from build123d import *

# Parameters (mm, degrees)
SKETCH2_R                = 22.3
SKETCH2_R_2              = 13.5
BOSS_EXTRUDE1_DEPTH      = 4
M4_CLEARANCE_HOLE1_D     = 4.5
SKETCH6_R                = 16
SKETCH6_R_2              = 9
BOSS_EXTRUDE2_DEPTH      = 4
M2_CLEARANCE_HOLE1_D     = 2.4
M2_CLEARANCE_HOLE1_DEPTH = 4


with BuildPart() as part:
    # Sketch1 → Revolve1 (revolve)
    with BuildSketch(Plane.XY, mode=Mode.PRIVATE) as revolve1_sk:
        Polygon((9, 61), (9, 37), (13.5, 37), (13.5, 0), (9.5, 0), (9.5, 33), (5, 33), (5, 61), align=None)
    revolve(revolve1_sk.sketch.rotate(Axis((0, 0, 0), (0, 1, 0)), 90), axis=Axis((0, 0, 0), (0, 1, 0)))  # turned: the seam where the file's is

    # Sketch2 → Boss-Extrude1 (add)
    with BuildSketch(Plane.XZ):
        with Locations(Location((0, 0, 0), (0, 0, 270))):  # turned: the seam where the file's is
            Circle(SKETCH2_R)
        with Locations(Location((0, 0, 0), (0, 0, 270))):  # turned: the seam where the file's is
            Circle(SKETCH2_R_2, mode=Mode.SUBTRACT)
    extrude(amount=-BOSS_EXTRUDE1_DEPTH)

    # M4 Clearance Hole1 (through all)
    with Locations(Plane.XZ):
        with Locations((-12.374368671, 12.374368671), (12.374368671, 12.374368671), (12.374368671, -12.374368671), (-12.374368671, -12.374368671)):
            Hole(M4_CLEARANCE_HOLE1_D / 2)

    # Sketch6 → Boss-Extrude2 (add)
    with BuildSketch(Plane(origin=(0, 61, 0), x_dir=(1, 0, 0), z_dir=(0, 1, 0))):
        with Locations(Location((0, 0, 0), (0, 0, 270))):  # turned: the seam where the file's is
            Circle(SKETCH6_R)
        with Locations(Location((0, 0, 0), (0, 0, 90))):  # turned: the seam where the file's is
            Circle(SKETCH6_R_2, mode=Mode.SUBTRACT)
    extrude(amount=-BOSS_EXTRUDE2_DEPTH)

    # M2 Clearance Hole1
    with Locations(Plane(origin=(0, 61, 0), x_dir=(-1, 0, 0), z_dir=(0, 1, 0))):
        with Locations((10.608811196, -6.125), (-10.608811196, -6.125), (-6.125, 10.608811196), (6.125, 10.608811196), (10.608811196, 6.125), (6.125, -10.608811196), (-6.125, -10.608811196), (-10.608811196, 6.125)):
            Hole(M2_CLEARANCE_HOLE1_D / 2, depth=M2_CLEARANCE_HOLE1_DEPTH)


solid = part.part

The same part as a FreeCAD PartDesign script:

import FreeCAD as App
import Part
import Sketcher

V = App.Vector


def add_polygon(sketch, points):
    """Adds a closed chain of lines whose ends are joined by coincident constraints."""
    first, n = sketch.GeometryCount, len(points)
    for a, b in zip(points, points[1:] + points[:1]):
        sketch.addGeometry(Part.LineSegment(App.Vector(*a, 0), App.Vector(*b, 0)), False)
    for i in range(n):
        sketch.addConstraint(Sketcher.Constraint("Coincident", first + i, 2, first + (i + 1) % n, 1))

doc = App.newDocument("Part")
body = doc.addObject("PartDesign::Body", "Body")

sketch1 = body.newObject("Sketcher::SketchObject", "Sketch")
sketch1.AttachmentSupport = (doc.getObject("XY_Plane"), [""])
sketch1.MapMode = "FlatFace"
add_polygon(sketch1, [(9, 37), (9, 61), (5, 61), (5, 33), (9.5, 33), (9.5, 0), (13.5, 0), (13.5, 37)])
sketch1.addConstraint(Sketcher.Constraint("Vertical", 0))
sketch1.addConstraint(Sketcher.Constraint("Horizontal", 1))
sketch1.addConstraint(Sketcher.Constraint("Vertical", 2))
sketch1.addConstraint(Sketcher.Constraint("Horizontal", 3))
sketch1.addConstraint(Sketcher.Constraint("Vertical", 4))
sketch1.addConstraint(Sketcher.Constraint("Horizontal", 5))
sketch1.addConstraint(Sketcher.Constraint("Vertical", 6))
sketch1.addConstraint(Sketcher.Constraint("Horizontal", 7))
sketch1.addConstraint(Sketcher.Constraint("PointOnObject", 4, 2, -1))
sketch1.addConstraint(Sketcher.Constraint("Equal", 1, 5))
sketch1.addConstraint(Sketcher.Constraint("DistanceX", 1, 2, 1, 1, 4.0))
sketch1.addConstraint(Sketcher.Constraint("DistanceY", 0, 1, 0, 2, 24.0))
sketch1.addConstraint(Sketcher.Constraint("DistanceY", 2, 2, 2, 1, 28.0))
sketch1.addConstraint(Sketcher.Constraint("DistanceY", 4, 2, 4, 1, 33.0))
sketch1.addConstraint(Sketcher.Constraint("DistanceX", 3, 1, 3, 2, 4.5))
sketch1.addConstraint(Sketcher.Constraint("DistanceX", -1, 1, 0, 2, 9.0))
revolution = body.newObject("PartDesign::Revolution", "Revolution")
revolution.Profile = sketch1
revolution.ReferenceAxis = (sketch1, ["V_Axis"])
revolution.Angle = 360

sketch2 = body.newObject("Sketcher::SketchObject", "Sketch001")
sketch2.AttachmentSupport = (doc.getObject("XZ_Plane"), [""])
sketch2.MapMode = "FlatFace"
sketch2.addGeometry(Part.Circle(V(0, 0, 0), V(0, 0, 1), 22), False)
sketch2.addGeometry(Part.Circle(V(0, 0, 0), V(0, 0, 1), 14), False)
sketch2.addConstraint(Sketcher.Constraint("Coincident", 0, 3, -1, 1))
sketch2.addConstraint(Sketcher.Constraint("Coincident", 1, 3, -1, 1))
sketch2.addConstraint(Sketcher.Constraint("Diameter", 1, 27.0))
sketch2.addConstraint(Sketcher.Constraint("Diameter", 0, 44.6))
pad1 = body.newObject("PartDesign::Pad", "Pad")
pad1.Profile = sketch2
pad1.Length = 4
pad1.Reversed = True

sketch3 = body.newObject("Sketcher::SketchObject", "Sketch002")
sketch3.AttachmentSupport = (doc.getObject("XZ_Plane"), [""])
sketch3.MapMode = "FlatFace"
sketch3.addGeometry(Part.Circle(V(-12.4, 12.4, 0), V(0, 0, 1), 2.2), False)
sketch3.addGeometry(Part.Circle(V(12.4, 12.4, 0), V(0, 0, 1), 2.2), False)
sketch3.addGeometry(Part.Circle(V(12.4, -12.4, 0), V(0, 0, 1), 2.2), False)
sketch3.addGeometry(Part.Circle(V(-12.4, -12.4, 0), V(0, 0, 1), 2.2), False)
sketch3.addConstraint(Sketcher.Constraint("Equal", 0, 1))
sketch3.addConstraint(Sketcher.Constraint("Equal", 1, 2))
sketch3.addConstraint(Sketcher.Constraint("Equal", 2, 3))
sketch3.addConstraint(Sketcher.Constraint("Symmetric", 0, 3, 2, 3, -1, 1))
sketch3.addConstraint(Sketcher.Constraint("Symmetric", 1, 3, 3, 3, -1, 1))
sketch3.addConstraint(Sketcher.Constraint("Symmetric", 0, 3, 1, 3, -2))
sketch3.addConstraint(Sketcher.Constraint("Diameter", 0, 4.5))
sketch3.addConstraint(Sketcher.Constraint("DistanceX", 0, 3, -1, 1, 12.374369))
sketch3.addConstraint(Sketcher.Constraint("DistanceY", -1, 1, 0, 3, 12.374369))
doc.recompute()
hole = body.newObject("PartDesign::Hole", "Hole")
hole.Profile = sketch3
hole.ThreadType = "None"
hole.Diameter = 4.5
hole.DepthType = "ThroughAll"

sketch4 = body.newObject("Sketcher::SketchObject", "Sketch003")
sketch4.AttachmentSupport = (doc.getObject("XZ_Plane"), [""])
sketch4.MapMode = "FlatFace"
sketch4.AttachmentOffset = App.Placement(V(0, 0, -61), App.Rotation())
sketch4.addGeometry(Part.Circle(V(0, 0, 0), V(0, 0, 1), 16), False)
sketch4.addGeometry(Part.Circle(V(0, 0, 0), V(0, 0, 1), 9), False)
sketch4.addConstraint(Sketcher.Constraint("Coincident", 0, 3, -1, 1))
sketch4.addConstraint(Sketcher.Constraint("Coincident", 1, 3, -1, 1))
sketch4.addConstraint(Sketcher.Constraint("Diameter", 0, 32.0))
sketch4.addConstraint(Sketcher.Constraint("Diameter", 1, 18.0))
pad2 = body.newObject("PartDesign::Pad", "Pad001")
pad2.Profile = sketch4
pad2.Length = 4

sketch5 = body.newObject("Sketcher::SketchObject", "Sketch004")
sketch5.AttachmentSupport = (doc.getObject("XZ_Plane"), [""])
sketch5.MapMode = "FlatFace"
sketch5.AttachmentOffset = App.Placement(V(0, 0, -61), App.Rotation())
sketch5.addGeometry(Part.Circle(V(-10.6, -6.1, 0), V(0, 0, 1), 1.2), False)
sketch5.addGeometry(Part.Circle(V(10.6, -6.1, 0), V(0, 0, 1), 1.2), False)
sketch5.addGeometry(Part.Circle(V(6.1, 10.6, 0), V(0, 0, 1), 1.2), False)
sketch5.addGeometry(Part.Circle(V(-6.1, 10.6, 0), V(0, 0, 1), 1.2), False)
sketch5.addGeometry(Part.Circle(V(-10.6, 6.1, 0), V(0, 0, 1), 1.2), False)
sketch5.addGeometry(Part.Circle(V(-6.1, -10.6, 0), V(0, 0, 1), 1.2), False)
sketch5.addGeometry(Part.Circle(V(6.1, -10.6, 0), V(0, 0, 1), 1.2), False)
sketch5.addGeometry(Part.Circle(V(10.6, 6.1, 0), V(0, 0, 1), 1.2), False)
sketch5.addConstraint(Sketcher.Constraint("Equal", 0, 1))
sketch5.addConstraint(Sketcher.Constraint("Equal", 1, 2))
sketch5.addConstraint(Sketcher.Constraint("Equal", 2, 3))
sketch5.addConstraint(Sketcher.Constraint("Equal", 3, 4))
sketch5.addConstraint(Sketcher.Constraint("Equal", 4, 5))
sketch5.addConstraint(Sketcher.Constraint("Equal", 5, 6))
sketch5.addConstraint(Sketcher.Constraint("Equal", 6, 7))
sketch5.addConstraint(Sketcher.Constraint("Symmetric", 1, 3, 4, 3, -1, 1))
sketch5.addConstraint(Sketcher.Constraint("Symmetric", 2, 3, 5, 3, -1, 1))
sketch5.addConstraint(Sketcher.Constraint("Symmetric", 3, 3, 6, 3, -1, 1))
sketch5.addConstraint(Sketcher.Constraint("Symmetric", 0, 3, 7, 3, -1, 1))
sketch5.addConstraint(Sketcher.Constraint("Symmetric", 0, 3, 1, 3, -2))
sketch5.addConstraint(Sketcher.Constraint("Symmetric", 2, 3, 3, 3, -2))
sketch5.addConstraint(Sketcher.Constraint("Diameter", 0, 2.4))
sketch5.addConstraint(Sketcher.Constraint("DistanceX", 3, 3, 2, 3, 12.25))
sketch5.addConstraint(Sketcher.Constraint("DistanceY", 0, 3, 4, 3, 12.25))
sketch5.addConstraint(Sketcher.Constraint("DistanceX", 0, 3, -1, 1, 10.608811))
sketch5.addConstraint(Sketcher.Constraint("DistanceY", -1, 1, 2, 3, 10.608811))
doc.recompute()
hole2 = body.newObject("PartDesign::Hole", "Hole001")
hole2.Profile = sketch5
hole2.ThreadType = "None"
hole2.Diameter = 2.4
hole2.DepthType = "Dimension"
hole2.Depth = 4
hole2.DrillPoint = "Flat"
hole2.Reversed = True

doc.recompute()
